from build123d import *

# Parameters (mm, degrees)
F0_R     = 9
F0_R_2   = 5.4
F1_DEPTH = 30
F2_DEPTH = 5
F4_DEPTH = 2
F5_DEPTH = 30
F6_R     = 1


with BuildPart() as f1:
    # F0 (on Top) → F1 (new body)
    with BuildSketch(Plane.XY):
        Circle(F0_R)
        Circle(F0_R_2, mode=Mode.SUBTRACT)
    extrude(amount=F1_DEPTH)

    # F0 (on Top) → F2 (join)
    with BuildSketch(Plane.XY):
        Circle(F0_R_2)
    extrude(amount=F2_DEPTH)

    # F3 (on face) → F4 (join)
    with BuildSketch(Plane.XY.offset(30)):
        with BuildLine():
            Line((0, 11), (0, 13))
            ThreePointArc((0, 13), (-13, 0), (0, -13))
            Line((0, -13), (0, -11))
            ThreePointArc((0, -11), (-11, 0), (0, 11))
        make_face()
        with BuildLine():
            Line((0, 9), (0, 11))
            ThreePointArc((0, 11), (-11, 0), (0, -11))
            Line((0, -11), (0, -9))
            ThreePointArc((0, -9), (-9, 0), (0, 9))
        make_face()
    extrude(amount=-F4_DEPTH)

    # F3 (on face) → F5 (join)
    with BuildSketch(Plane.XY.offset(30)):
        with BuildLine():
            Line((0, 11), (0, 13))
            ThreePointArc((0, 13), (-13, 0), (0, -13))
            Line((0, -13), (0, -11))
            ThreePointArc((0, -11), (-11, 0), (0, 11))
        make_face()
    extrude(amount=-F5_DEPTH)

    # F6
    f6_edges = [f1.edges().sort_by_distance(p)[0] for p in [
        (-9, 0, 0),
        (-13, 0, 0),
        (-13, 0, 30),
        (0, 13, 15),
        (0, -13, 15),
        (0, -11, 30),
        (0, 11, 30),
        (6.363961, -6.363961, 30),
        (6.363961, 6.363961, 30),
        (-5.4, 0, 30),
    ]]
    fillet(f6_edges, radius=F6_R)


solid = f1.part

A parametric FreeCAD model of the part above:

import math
import FreeCAD as App
import Part
import Sketcher

V = App.Vector
Q = App.Units.Quantity


def edges_at(feature, points):
    """Names of the edges that pass closest to the given points."""
    edges = feature.Shape.Edges
    near = lambda p: min(range(len(edges)), key=lambda i: edges[i].distToShape(Part.Vertex(*p))[0])
    return sorted({f"Edge{near(p) + 1}" for p in points})

doc = App.newDocument("Part")
body = doc.addObject("PartDesign::Body", "Body")

# Sketch on XY plane
sketch1 = body.newObject("Sketcher::SketchObject", "Sketch")
sketch1.AttachmentSupport = (doc.getObject("XY_Plane"), [""])
sketch1.MapMode = "FlatFace"
sketch1.addGeometry(Part.Circle(V(0, 0, 0), V(0, 0, 1), 9), False)
sketch1.addGeometry(Part.Circle(V(0, 0, 0), V(0, 0, 1), 5.4), False)
sketch1.addConstraint(Sketcher.Constraint("Coincident", 0, 3, -1, 1))
sketch1.addConstraint(Sketcher.Constraint("Coincident", 1, 3, -1, 1))
sketch1.addConstraint(Sketcher.Constraint("Diameter", 0, Q("18 mm")))
sketch1.addConstraint(Sketcher.Constraint("Diameter", 1, Q("10.8 mm")))
pad1 = body.newObject("PartDesign::Pad", "Pad")
pad1.Profile = sketch1
pad1.Length = 30

# Sketch on XY plane
sketch2 = body.newObject("Sketcher::SketchObject", "Sketch001")
sketch2.AttachmentSupport = (doc.getObject("XY_Plane"), [""])
sketch2.MapMode = "FlatFace"
sketch2.addGeometry(Part.Circle(V(0, 0, 0), V(0, 0, 1), 5.4), False)
sketch2.addConstraint(Sketcher.Constraint("Coincident", 0, 3, -1, 1))
sketch2.addConstraint(Sketcher.Constraint("Diameter", 0, Q("10.8 mm")))
pad2 = body.newObject("PartDesign::Pad", "Pad001")
pad2.Profile = sketch2
pad2.Length = 5

# Sketch on XY plane
sketch3 = body.newObject("Sketcher::SketchObject", "Sketch002")
sketch3.AttachmentSupport = (doc.getObject("XY_Plane"), [""])
sketch3.MapMode = "FlatFace"
sketch3.AttachmentOffset = App.Placement(V(0, 0, 30), App.Rotation())
sketch3.addGeometry(Part.ArcOfCircle(Part.Circle(V(0, 0, 0), V(0, 0, 1), 13), math.radians(90), math.radians(270)), False)
sketch3.addGeometry(Part.LineSegment(V(0, -13, 0), V(0, -9, 0)), False)
sketch3.addGeometry(Part.ArcOfCircle(Part.Circle(V(0, 0, 0), V(0, 0, 1), 9), math.radians(90), math.radians(270)), False)
sketch3.addGeometry(Part.LineSegment(V(0, 9, 0), V(0, 13, 0)), False)
sketch3.addConstraint(Sketcher.Constraint("Coincident", 0, 2, 1, 1))
sketch3.addConstraint(Sketcher.Constraint("Coincident", 1, 2, 2, 2))
sketch3.addConstraint(Sketcher.Constraint("Coincident", 2, 1, 3, 1))
sketch3.addConstraint(Sketcher.Constraint("Coincident", 3, 2, 0, 1))
sketch3.addConstraint(Sketcher.Constraint("Vertical", 1))
sketch3.addConstraint(Sketcher.Constraint("Vertical", 3))
sketch3.addConstraint(Sketcher.Constraint("Coincident", 0, 3, -1, 1))
sketch3.addConstraint(Sketcher.Constraint("Coincident", 2, 3, -1, 1))
sketch3.addConstraint(Sketcher.Constraint("PointOnObject", 0, 2, -2))
sketch3.addConstraint(Sketcher.Constraint("PointOnObject", 2, 1, -2))
sketch3.addConstraint(Sketcher.Constraint("Radius", 0, Q("13 mm")))
sketch3.addConstraint(Sketcher.Constraint("Radius", 2, Q("9 mm")))
pad3 = body.newObject("PartDesign::Pad", "Pad002")
pad3.Profile = sketch3
pad3.Length = 2
pad3.Reversed = True

# Sketch on XY plane
sketch4 = body.newObject("Sketcher::SketchObject", "Sketch003")
sketch4.AttachmentSupport = (doc.getObject("XY_Plane"), [""])
sketch4.MapMode = "FlatFace"
sketch4.AttachmentOffset = App.Placement(V(0, 0, 30), App.Rotation())
sketch4.addGeometry(Part.LineSegment(V(0, 11, 0), V(0, 13, 0)), False)
sketch4.addGeometry(Part.ArcOfCircle(Part.Circle(V(0, 0, 0), V(0, 0, 1), 13), math.radians(90), math.radians(270)), False)
sketch4.addGeometry(Part.LineSegment(V(0, -13, 0), V(0, -11, 0)), False)
sketch4.addGeometry(Part.ArcOfCircle(Part.Circle(V(0, 0, 0), V(0, 0, 1), 11), math.radians(90), math.radians(270)), False)
sketch4.addConstraint(Sketcher.Constraint("Coincident", 0, 2, 1, 1))
sketch4.addConstraint(Sketcher.Constraint("Coincident", 1, 2, 2, 1))
sketch4.addConstraint(Sketcher.Constraint("Coincident", 2, 2, 3, 2))
sketch4.addConstraint(Sketcher.Constraint("Coincident", 3, 1, 0, 1))
sketch4.addConstraint(Sketcher.Constraint("Vertical", 0))
sketch4.addConstraint(Sketcher.Constraint("Vertical", 2))
sketch4.addConstraint(Sketcher.Constraint("Coincident", 1, 3, -1, 1))
sketch4.addConstraint(Sketcher.Constraint("Coincident", 3, 3, -1, 1))
sketch4.addConstraint(Sketcher.Constraint("PointOnObject", 0, 2, -2))
sketch4.addConstraint(Sketcher.Constraint("PointOnObject", 1, 2, -2))
sketch4.addConstraint(Sketcher.Constraint("Radius", 1, Q("13 mm")))
sketch4.addConstraint(Sketcher.Constraint("Radius", 3, Q("11 mm")))
pad4 = body.newObject("PartDesign::Pad", "Pad003")
pad4.Profile = sketch4
pad4.Length = 30
pad4.Reversed = True
doc.recompute()

fillet = body.newObject("PartDesign::Fillet", "Fillet")
fillet.Base = (pad4, edges_at(pad4, [
    (-9, 0, 0),
    (-13, 0, 0),
    (-13, 0, 30),
    (0, 13, 15),
    (0, -13, 15),
    (0, -11, 30),
    (0, 11, 30),
    (6.364, -6.364, 30),
    (6.364, 6.364, 30),
    (-5.4, 0, 30),
]))
fillet.Radius = 1

doc.recompute()
